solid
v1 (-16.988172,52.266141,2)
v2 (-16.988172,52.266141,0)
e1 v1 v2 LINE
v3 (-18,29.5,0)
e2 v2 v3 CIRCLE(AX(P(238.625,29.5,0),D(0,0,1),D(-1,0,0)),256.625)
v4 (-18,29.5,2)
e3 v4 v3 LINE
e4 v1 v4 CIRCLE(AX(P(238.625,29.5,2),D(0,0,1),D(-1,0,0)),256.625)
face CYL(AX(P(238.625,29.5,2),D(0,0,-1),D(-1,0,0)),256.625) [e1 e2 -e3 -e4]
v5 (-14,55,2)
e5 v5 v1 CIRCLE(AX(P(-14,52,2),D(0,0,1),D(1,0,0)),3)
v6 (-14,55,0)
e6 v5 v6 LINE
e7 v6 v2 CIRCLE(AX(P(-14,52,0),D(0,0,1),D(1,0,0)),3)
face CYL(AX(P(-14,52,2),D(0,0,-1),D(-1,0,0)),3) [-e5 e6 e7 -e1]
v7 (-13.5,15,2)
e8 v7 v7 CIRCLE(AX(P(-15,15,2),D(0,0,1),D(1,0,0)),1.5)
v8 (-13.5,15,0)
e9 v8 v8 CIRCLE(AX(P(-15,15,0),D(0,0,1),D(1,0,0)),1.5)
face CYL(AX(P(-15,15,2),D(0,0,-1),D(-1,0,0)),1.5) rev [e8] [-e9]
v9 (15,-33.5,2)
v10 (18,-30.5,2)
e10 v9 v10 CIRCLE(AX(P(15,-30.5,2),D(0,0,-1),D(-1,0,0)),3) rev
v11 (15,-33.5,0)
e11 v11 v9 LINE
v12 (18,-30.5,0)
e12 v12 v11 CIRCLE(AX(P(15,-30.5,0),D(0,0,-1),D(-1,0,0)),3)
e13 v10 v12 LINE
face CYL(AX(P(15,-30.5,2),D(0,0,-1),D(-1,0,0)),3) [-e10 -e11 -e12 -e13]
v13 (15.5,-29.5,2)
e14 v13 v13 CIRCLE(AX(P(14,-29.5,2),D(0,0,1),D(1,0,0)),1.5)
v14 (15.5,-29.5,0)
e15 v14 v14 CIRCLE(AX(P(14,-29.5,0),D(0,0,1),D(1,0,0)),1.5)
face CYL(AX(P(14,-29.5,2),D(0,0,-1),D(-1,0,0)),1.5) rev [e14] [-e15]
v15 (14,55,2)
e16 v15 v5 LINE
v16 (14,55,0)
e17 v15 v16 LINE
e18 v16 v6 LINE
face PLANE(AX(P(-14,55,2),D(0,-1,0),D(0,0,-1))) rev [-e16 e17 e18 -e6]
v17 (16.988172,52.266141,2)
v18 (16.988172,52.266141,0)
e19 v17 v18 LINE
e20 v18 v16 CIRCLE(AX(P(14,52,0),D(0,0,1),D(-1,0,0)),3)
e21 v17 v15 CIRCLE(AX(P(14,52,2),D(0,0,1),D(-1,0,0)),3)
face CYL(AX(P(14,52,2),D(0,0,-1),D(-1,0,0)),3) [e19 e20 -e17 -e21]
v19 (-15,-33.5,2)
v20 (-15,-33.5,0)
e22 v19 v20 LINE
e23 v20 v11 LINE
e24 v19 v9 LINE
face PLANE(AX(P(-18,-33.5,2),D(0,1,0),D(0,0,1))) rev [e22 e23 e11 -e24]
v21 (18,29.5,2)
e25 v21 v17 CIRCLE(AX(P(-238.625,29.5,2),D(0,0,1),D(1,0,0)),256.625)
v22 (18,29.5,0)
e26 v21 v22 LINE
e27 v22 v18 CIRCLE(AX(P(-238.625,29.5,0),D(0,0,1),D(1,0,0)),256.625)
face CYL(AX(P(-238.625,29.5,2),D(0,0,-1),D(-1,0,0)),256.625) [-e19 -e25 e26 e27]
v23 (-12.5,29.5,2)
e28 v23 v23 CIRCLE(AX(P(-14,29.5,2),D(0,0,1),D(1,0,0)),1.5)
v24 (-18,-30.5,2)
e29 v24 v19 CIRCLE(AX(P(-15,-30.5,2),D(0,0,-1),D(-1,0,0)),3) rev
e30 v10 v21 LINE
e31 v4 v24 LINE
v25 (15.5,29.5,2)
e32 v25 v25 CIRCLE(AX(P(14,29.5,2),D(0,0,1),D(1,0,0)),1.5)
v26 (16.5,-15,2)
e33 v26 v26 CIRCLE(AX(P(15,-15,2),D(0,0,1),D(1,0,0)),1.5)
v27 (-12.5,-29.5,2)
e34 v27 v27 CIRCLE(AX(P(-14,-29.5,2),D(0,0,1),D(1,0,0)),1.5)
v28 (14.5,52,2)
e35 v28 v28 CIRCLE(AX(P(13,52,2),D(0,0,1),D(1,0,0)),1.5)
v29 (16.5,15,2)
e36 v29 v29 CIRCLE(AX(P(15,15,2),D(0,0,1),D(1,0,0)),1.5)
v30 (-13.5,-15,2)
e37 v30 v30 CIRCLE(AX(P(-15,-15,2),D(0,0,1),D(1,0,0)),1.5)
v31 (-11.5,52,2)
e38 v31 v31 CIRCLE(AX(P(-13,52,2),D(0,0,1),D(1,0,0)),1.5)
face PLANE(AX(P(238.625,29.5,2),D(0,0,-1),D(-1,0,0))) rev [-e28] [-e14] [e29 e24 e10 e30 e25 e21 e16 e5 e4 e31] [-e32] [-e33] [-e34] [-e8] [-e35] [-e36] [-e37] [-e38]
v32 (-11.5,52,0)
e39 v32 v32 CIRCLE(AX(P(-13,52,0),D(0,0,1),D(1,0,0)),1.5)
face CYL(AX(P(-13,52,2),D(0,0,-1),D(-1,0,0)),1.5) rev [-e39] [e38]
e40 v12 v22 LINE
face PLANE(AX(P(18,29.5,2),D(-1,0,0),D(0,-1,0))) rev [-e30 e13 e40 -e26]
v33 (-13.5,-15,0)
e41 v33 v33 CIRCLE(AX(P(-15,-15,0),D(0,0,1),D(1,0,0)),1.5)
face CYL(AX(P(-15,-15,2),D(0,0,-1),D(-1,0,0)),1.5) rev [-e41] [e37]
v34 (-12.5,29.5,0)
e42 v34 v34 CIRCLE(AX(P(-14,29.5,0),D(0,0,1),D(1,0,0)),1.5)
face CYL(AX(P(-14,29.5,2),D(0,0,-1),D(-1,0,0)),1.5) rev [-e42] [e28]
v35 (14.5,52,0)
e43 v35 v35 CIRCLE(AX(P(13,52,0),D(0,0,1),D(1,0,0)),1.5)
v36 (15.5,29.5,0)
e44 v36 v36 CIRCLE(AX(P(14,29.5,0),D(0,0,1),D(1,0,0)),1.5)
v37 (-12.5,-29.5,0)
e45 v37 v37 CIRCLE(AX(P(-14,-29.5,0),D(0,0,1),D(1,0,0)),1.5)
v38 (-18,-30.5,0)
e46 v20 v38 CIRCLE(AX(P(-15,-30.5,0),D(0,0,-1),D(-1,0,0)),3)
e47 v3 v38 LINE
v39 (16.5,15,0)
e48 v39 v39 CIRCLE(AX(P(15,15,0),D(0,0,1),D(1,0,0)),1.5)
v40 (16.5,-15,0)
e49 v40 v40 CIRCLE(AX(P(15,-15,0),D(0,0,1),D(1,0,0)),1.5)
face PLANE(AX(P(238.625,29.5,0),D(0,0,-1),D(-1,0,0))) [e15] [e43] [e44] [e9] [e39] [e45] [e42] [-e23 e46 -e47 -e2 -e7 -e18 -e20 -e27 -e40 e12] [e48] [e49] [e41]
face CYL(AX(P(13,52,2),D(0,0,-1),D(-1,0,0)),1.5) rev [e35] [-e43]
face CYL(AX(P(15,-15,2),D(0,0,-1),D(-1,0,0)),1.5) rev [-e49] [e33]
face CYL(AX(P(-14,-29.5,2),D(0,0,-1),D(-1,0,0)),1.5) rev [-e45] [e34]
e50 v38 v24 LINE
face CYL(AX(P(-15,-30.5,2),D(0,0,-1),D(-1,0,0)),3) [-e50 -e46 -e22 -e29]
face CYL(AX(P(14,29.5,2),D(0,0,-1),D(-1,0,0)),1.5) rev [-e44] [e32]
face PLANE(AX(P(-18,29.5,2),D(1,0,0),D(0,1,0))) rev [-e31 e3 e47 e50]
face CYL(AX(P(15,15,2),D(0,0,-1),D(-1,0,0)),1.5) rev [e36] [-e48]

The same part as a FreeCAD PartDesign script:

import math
import FreeCAD as App
import Part
import Sketcher
from FreeCAD import Vector
Q = App.Units.Quantity


def edges_at(feature, points):
    """Names of the edges that pass closest to the given points."""
    edges = feature.Shape.Edges
    near = lambda p: min(range(len(edges)), key=lambda i: edges[i].distToShape(Part.Vertex(*p))[0])
    return sorted({f"Edge{near(p) + 1}" for p in points})

doc = App.newDocument("Part")
params = doc.addObject("Spreadsheet::Sheet", "Params")
for row, (alias, value) in enumerate([
    ("sketch1_diameter", "3 mm"),
    ("sketch1_radius", "3 mm"),
    ("sketch1_width", "36 mm"),
    ("sketch1_width2", "28 mm"),
    ("sketch1_height", "63 mm"),
    ("pad1_length", "2 mm"),
    ("fillet_radius", "3 mm"),
], start=1):
    params.set(f"A{row}", alias)
    params.set(f"B{row}", "=" + value)
    params.setAlias(f"B{row}", alias)

body = doc.addObject("PartDesign::Body", "Body")

sketch1 = doc.addObject("Sketcher::SketchObject", "Sketch")
body.addObject(sketch1)
sketch1.AttachmentSupport = (doc.XY_Plane, [""])
sketch1.MapMode = "FlatFace"
sketch1.addGeometry(Part.LineSegment(Vector(-18, 29.5, 0), Vector(-18, -33.5, 0)), False)
sketch1.addGeometry(Part.LineSegment(Vector(-18, -33.5, 0), Vector(18, -33.5, 0)), False)
sketch1.addGeometry(Part.LineSegment(Vector(18, -33.5, 0), Vector(18, 29.5, 0)), False)
sketch1.addGeometry(Part.ArcOfCircle(Part.Circle(Vector(-238.6, 29.5, 0), Vector(0, 0, 1), 256.6), math.radians(0), math.radians(5.09)), False)
sketch1.addGeometry(Part.ArcOfCircle(Part.Circle(Vector(14, 52, 0), Vector(0, 0, 1), 3), math.radians(5), math.radians(90)), False)
sketch1.addGeometry(Part.LineSegment(Vector(14, 55, 0), Vector(-14, 55, 0)), False)
sketch1.addGeometry(Part.ArcOfCircle(Part.Circle(Vector(-14, 52, 0), Vector(0, 0, 1), 3), math.radians(90), math.radians(175)), False)
sketch1.addGeometry(Part.ArcOfCircle(Part.Circle(Vector(238.6, 29.5, 0), Vector(0, 0, 1), 256.6), math.radians(174.91), math.radians(180)), False)
sketch1.addGeometry(Part.Circle(Vector(-14, -29.5, 0), Vector(0, 0, 1), 1.5), False)
sketch1.addGeometry(Part.Circle(Vector(-15, -15, 0), Vector(0, 0, 1), 1.5), False)
sketch1.addGeometry(Part.Circle(Vector(14, -29.5, 0), Vector(0, 0, 1), 1.5), False)
sketch1.addGeometry(Part.Circle(Vector(15, -15, 0), Vector(0, 0, 1), 1.5), False)
sketch1.addGeometry(Part.Circle(Vector(-15, 15, 0), Vector(0, 0, 1), 1.5), False)
sketch1.addGeometry(Part.Circle(Vector(-14, 29.5, 0), Vector(0, 0, 1), 1.5), False)
sketch1.addGeometry(Part.Circle(Vector(-13, 52, 0), Vector(0, 0, 1), 1.5), False)
sketch1.addGeometry(Part.Circle(Vector(15, 15, 0), Vector(0, 0, 1), 1.5), False)
sketch1.addGeometry(Part.Circle(Vector(14, 29.5, 0), Vector(0, 0, 1), 1.5), False)
sketch1.addGeometry(Part.Circle(Vector(13, 52, 0), Vector(0, 0, 1), 1.5), False)
sketch1.addConstraint(Sketcher.Constraint("Coincident", 0, 2, 1, 1))
sketch1.addConstraint(Sketcher.Constraint("Coincident", 1, 2, 2, 1))
sketch1.addConstraint(Sketcher.Constraint("Tangent", 2, 2, 3, 1))
sketch1.addConstraint(Sketcher.Constraint("Tangent", 3, 2, 4, 1))
sketch1.addConstraint(Sketcher.Constraint("Tangent", 4, 2, 5, 1))
sketch1.addConstraint(Sketcher.Constraint("Tangent", 5, 2, 6, 1))
sketch1.addConstraint(Sketcher.Constraint("Tangent", 6, 2, 7, 1))
sketch1.addConstraint(Sketcher.Constraint("Tangent", 7, 2, 0, 1))
sketch1.addConstraint(Sketcher.Constraint("Vertical", 0))
sketch1.addConstraint(Sketcher.Constraint("Horizontal", 1))
sketch1.addConstraint(Sketcher.Constraint("Vertical", 2))
sketch1.addConstraint(Sketcher.Constraint("Horizontal", 5))
sketch1.addConstraint(Sketcher.Constraint("Equal", 4, 6))
sketch1.addConstraint(Sketcher.Constraint("Equal", 3, 7))
sketch1.addConstraint(Sketcher.Constraint("Equal", 8, 9))
sketch1.addConstraint(Sketcher.Constraint("Equal", 9, 10))
sketch1.addConstraint(Sketcher.Constraint("Equal", 10, 11))
sketch1.addConstraint(Sketcher.Constraint("Equal", 11, 12))
sketch1.addConstraint(Sketcher.Constraint("Equal", 12, 13))
sketch1.addConstraint(Sketcher.Constraint("Equal", 13, 14))
sketch1.addConstraint(Sketcher.Constraint("Equal", 14, 15))
sketch1.addConstraint(Sketcher.Constraint("Equal", 15, 16))
sketch1.addConstraint(Sketcher.Constraint("Equal", 16, 17))
sketch1.addConstraint(Sketcher.Constraint("Symmetric", 11, 3, 12, 3, -1, 1))
sketch1.addConstraint(Sketcher.Constraint("Symmetric", 10, 3, 13, 3, -1, 1))
sketch1.addConstraint(Sketcher.Constraint("Symmetric", 9, 3, 15, 3, -1, 1))
sketch1.addConstraint(Sketcher.Constraint("Symmetric", 8, 3, 16, 3, -1, 1))
sketch1.addConstraint(Sketcher.Constraint("Symmetric", 3, 3, 7, 3, -2))
sketch1.addConstraint(Sketcher.Constraint("Symmetric", 8, 3, 10, 3, -2))
sketch1.addConstraint(Sketcher.Constraint("Symmetric", 9, 3, 11, 3, -2))
sketch1.addConstraint(Sketcher.Constraint("Symmetric", 14, 3, 17, 3, -2))
sketch1.addConstraint(Sketcher.Constraint("Horizontal", 7, 3, 13, 3))
sketch1.addConstraint(Sketcher.Constraint("Horizontal", 6, 3, 14, 3))
sketch1.addConstraint(Sketcher.Constraint("Vertical", 6, 3, 8, 3))
sketch1.addConstraint(Sketcher.Constraint("Diameter", 8, Q("3 mm")))
sketch1.addConstraint(Sketcher.Constraint("Radius", 4, Q("3 mm")))
sketch1.addConstraint(Sketcher.Constraint("DistanceX", 1, 1, 1, 2, Q("36 mm")))
sketch1.addConstraint(Sketcher.Constraint("DistanceX", 5, 2, 5, 1, Q("28 mm")))
sketch1.addConstraint(Sketcher.Constraint("DistanceY", 0, 2, 0, 1, Q("63 mm")))
sketch1.addConstraint(Sketcher.Constraint("DistanceY", -1, 1, 4, 3, Q("52 mm")))
sketch1.addConstraint(Sketcher.Constraint("DistanceX", 9, 3, -1, 1, Q("15 mm")))
sketch1.addConstraint(Sketcher.Constraint("DistanceY", 9, 3, -1, 1, Q("15 mm")))
sketch1.addConstraint(Sketcher.Constraint("DistanceX", 14, 3, -1, 1, Q("13 mm")))
sketch1.addConstraint(Sketcher.Constraint("Radius", 3, Q("256.625 mm")))
sketch1.setExpression("Constraints[34]", "Params.sketch1_diameter")
sketch1.setExpression("Constraints[35]", "Params.sketch1_radius")
sketch1.setExpression("Constraints[36]", "Params.sketch1_width")
sketch1.setExpression("Constraints[37]", "Params.sketch1_width2")
sketch1.setExpression("Constraints[38]", "Params.sketch1_height")
pad1 = doc.addObject("PartDesign::Pad", "Pad")
body.addObject(pad1)
pad1.Profile = sketch1
pad1.setExpression("Length", "Params.pad1_length")
doc.recompute()

fillet = doc.addObject("PartDesign::Fillet", "Fillet")
body.addObject(fillet)
fillet.Base = (pad1, edges_at(pad1, [(18, -33.5, 1), (-18, -33.5, 1)]))
fillet.setExpression("Radius", "Params.fillet_radius")

doc.recompute()
